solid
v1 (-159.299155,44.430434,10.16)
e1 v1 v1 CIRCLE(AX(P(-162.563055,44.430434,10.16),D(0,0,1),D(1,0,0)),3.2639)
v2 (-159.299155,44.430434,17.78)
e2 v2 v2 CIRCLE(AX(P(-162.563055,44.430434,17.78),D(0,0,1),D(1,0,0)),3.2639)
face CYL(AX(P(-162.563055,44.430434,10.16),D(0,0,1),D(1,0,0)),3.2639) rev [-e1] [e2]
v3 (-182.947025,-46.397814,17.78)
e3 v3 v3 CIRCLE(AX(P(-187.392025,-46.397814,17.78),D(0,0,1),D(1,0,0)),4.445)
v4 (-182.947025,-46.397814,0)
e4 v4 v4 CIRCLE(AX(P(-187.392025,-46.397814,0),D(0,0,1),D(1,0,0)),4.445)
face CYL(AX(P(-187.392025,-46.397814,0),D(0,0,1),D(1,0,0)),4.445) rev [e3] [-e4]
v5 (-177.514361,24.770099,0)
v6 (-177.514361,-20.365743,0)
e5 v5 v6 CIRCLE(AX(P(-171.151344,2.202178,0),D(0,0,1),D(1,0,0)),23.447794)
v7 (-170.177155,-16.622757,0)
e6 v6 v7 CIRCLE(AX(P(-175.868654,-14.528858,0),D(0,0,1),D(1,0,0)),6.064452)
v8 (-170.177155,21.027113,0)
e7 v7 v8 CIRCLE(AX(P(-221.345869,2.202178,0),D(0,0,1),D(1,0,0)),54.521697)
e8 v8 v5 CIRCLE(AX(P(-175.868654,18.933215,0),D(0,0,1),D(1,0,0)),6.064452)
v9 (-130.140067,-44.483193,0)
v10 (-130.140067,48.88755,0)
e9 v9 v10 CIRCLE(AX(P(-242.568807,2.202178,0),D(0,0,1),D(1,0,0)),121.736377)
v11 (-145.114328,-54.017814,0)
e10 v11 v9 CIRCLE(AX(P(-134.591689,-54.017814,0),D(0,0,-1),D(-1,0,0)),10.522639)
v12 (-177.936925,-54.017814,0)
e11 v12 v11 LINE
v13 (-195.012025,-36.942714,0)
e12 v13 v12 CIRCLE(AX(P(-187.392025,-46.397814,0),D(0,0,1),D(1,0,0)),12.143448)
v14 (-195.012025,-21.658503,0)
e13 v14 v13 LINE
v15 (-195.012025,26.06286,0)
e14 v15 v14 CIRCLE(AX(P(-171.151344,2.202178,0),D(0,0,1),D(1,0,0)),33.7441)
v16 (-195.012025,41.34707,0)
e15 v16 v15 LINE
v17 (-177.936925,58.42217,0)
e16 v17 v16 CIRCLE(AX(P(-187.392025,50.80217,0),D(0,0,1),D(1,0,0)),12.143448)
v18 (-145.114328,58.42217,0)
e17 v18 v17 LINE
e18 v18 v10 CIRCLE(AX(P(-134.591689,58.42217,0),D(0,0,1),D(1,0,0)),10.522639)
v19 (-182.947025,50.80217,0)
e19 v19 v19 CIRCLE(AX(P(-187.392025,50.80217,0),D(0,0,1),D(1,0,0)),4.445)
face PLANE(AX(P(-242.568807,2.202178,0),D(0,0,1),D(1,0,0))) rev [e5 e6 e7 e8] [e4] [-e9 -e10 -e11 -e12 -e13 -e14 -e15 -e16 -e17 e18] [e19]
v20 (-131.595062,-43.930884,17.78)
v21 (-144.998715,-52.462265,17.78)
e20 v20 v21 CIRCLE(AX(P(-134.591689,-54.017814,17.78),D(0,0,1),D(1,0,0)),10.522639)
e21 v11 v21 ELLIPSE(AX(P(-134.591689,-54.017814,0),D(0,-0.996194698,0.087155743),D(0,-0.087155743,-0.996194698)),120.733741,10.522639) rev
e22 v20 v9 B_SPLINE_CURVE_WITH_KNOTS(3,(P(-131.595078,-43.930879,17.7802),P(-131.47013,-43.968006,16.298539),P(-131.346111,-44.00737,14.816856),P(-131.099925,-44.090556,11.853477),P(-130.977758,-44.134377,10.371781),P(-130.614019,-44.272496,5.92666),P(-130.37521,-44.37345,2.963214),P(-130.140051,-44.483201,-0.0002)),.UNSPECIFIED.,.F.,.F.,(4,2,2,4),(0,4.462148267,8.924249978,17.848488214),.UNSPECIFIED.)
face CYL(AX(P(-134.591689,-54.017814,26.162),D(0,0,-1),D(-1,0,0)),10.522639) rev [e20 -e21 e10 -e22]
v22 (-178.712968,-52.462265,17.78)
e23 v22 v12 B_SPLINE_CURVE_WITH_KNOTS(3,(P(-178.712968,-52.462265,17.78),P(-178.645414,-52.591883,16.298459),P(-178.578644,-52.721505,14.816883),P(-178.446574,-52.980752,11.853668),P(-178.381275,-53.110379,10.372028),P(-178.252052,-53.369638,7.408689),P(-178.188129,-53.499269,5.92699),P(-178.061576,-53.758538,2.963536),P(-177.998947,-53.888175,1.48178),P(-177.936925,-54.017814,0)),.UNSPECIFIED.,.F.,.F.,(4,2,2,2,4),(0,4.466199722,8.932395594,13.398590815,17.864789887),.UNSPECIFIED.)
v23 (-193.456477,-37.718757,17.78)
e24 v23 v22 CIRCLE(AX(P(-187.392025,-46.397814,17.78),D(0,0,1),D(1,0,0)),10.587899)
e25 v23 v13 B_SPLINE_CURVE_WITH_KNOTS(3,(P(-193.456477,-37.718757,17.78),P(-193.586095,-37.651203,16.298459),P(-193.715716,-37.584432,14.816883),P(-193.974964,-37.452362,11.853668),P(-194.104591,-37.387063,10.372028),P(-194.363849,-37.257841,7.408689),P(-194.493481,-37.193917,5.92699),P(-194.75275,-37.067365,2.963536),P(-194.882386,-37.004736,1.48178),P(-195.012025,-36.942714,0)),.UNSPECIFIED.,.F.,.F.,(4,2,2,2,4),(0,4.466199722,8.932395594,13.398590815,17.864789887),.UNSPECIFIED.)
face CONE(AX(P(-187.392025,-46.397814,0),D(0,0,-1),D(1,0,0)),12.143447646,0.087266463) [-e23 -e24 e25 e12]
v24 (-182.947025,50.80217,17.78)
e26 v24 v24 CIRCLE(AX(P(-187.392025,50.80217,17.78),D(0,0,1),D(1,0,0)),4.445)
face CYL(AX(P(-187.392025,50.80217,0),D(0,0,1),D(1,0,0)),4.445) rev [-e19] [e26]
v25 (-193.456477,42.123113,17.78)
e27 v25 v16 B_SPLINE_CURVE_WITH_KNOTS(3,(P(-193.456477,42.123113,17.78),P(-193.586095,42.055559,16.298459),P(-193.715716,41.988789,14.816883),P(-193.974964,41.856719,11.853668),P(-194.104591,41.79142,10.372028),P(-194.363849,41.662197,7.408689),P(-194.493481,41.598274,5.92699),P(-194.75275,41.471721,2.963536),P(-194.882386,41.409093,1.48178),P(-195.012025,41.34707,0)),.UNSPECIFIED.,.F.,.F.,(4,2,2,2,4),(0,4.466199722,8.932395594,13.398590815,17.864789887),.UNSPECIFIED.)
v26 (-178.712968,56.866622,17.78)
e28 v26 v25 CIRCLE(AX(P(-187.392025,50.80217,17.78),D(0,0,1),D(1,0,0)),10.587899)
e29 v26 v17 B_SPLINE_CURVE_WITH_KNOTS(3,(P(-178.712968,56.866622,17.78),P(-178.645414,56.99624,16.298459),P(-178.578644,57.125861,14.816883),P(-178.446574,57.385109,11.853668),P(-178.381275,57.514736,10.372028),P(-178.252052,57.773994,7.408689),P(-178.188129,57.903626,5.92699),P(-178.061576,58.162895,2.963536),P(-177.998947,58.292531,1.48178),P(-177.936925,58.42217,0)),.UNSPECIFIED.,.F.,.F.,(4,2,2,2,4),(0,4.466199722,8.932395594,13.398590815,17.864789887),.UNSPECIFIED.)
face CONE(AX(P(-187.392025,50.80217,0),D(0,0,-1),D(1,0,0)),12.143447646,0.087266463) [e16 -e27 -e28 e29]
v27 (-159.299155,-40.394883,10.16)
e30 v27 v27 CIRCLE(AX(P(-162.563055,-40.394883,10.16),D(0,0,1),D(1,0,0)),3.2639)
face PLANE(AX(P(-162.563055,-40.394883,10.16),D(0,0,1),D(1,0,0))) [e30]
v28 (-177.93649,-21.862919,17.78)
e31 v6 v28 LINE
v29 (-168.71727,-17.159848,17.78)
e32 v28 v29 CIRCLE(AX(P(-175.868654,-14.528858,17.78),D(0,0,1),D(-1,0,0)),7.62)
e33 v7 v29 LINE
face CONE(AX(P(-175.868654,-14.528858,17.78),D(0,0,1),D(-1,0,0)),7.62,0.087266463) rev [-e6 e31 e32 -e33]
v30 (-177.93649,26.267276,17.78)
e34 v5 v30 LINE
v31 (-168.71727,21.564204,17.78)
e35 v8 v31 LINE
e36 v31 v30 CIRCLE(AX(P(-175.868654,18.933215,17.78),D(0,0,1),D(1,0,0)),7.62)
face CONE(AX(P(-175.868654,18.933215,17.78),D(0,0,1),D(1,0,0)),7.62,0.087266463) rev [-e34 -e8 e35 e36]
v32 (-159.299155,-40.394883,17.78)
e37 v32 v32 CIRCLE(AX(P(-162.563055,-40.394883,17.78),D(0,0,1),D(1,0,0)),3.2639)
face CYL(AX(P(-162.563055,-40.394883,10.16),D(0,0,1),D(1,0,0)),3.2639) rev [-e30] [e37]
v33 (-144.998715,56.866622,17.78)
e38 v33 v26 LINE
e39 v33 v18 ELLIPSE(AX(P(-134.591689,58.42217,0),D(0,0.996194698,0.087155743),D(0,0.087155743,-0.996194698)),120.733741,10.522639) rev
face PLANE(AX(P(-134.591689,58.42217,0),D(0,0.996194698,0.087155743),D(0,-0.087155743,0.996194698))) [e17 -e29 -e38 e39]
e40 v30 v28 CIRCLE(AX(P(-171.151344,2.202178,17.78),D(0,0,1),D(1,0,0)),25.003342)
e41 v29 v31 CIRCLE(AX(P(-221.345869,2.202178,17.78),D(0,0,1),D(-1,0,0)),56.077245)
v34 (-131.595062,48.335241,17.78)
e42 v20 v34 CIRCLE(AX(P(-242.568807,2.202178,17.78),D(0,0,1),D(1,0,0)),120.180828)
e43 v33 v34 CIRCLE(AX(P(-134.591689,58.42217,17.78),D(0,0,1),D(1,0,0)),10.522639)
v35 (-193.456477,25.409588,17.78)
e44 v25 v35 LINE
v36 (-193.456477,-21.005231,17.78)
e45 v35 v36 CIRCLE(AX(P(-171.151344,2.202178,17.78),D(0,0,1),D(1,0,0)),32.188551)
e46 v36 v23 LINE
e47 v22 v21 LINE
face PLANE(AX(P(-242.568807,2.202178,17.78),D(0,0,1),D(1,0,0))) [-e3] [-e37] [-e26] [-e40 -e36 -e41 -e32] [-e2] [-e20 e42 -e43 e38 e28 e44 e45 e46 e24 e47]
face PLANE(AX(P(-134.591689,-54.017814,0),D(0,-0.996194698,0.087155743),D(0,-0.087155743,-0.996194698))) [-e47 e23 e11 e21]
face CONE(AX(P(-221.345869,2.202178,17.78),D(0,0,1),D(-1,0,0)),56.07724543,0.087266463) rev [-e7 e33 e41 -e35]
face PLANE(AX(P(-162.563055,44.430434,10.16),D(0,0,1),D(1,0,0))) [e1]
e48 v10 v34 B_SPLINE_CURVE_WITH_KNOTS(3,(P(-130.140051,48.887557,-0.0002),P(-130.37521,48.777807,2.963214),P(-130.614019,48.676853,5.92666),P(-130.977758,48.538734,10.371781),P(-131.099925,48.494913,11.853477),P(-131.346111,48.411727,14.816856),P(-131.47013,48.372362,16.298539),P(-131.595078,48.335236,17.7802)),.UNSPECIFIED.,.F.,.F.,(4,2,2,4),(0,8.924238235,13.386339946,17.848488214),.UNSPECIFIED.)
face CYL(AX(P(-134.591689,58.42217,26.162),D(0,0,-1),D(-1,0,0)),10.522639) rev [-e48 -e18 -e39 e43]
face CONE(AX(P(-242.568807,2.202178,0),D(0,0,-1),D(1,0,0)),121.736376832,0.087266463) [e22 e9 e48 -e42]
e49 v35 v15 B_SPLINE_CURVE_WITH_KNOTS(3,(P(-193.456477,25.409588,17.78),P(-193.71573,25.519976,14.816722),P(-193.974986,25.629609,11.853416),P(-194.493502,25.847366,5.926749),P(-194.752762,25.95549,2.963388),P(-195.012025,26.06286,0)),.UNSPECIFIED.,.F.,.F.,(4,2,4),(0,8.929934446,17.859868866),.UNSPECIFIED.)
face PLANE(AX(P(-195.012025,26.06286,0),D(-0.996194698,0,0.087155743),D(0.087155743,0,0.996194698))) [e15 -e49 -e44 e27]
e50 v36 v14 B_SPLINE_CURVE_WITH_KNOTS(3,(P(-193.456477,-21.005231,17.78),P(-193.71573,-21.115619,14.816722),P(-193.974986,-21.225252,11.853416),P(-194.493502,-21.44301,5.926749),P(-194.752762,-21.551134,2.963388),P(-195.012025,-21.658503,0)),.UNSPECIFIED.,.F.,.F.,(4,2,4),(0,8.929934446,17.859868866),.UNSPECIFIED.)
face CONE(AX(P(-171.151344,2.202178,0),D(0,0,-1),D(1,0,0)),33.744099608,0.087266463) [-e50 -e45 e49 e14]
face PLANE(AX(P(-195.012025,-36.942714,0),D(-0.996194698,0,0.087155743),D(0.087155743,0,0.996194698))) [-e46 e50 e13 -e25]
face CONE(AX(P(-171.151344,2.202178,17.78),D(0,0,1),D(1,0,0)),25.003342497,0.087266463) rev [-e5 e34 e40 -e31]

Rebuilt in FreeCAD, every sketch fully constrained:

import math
import FreeCAD as App
import Part
import Sketcher
Q = App.Units.Quantity


def faces_at(feature, points):
    """Names of the faces that lie closest to the given points."""
    faces = feature.Shape.Faces
    near = lambda p: min(range(len(faces)), key=lambda i: faces[i].distToShape(Part.Vertex(*p))[0])
    return sorted({f"Face{near(p) + 1}" for p in points})

doc = App.newDocument("Part")
body = doc.addObject("PartDesign::Body", "Body")

# Sketch on XY plane
sketch1 = doc.addObject("Sketcher::SketchObject", "Sketch")
body.addObject(sketch1)
sketch1.AttachmentSupport = (doc.XY_Plane, [""])
sketch1.MapMode = "FlatFace"
sketch1.addGeometry(Part.ArcOfCircle(Part.Circle(App.Vector(-171.151344, 2.202178, 0), App.Vector(0, 0, 1), 33.7441), math.radians(135), math.radians(225)), False)
sketch1.addGeometry(Part.LineSegment(App.Vector(-195.012025, -21.658503, 0), App.Vector(-195.012025, -36.942714, 0)), False)
sketch1.addGeometry(Part.ArcOfCircle(Part.Circle(App.Vector(-187.392025, -46.397814, 0), App.Vector(0, 0, 1), 12.143448), math.radians(128.865836), math.radians(321.134164)), False)
sketch1.addGeometry(Part.LineSegment(App.Vector(-177.936925, -54.017814, 0), App.Vector(-134.591689, -54.017814, 0)), False)
sketch1.addGeometry(Part.ArcOfCircle(Part.Circle(App.Vector(-242.568807, 2.202178, 0), App.Vector(0, 0, 1), 121.736377), math.radians(-27.504451), math.radians(27.504451)), False)
sketch1.addGeometry(Part.LineSegment(App.Vector(-134.591689, 58.42217, 0), App.Vector(-177.936925, 58.42217, 0)), False)
sketch1.addGeometry(Part.ArcOfCircle(Part.Circle(App.Vector(-187.392025, 50.80217, 0), App.Vector(0, 0, 1), 12.143448), math.radians(38.865836), math.radians(231.134164)), False)
sketch1.addGeometry(Part.LineSegment(App.Vector(-195.012025, 41.34707, 0), App.Vector(-195.012025, 26.06286, 0)), False)
sketch1.addConstraint(Sketcher.Constraint("Coincident", 0, 2, 1, 1))
sketch1.addConstraint(Sketcher.Constraint("Coincident", 1, 2, 2, 1))
sketch1.addConstraint(Sketcher.Constraint("Coincident", 2, 2, 3, 1))
sketch1.addConstraint(Sketcher.Constraint("Coincident", 3, 2, 4, 1))
sketch1.addConstraint(Sketcher.Constraint("Coincident", 4, 2, 5, 1))
sketch1.addConstraint(Sketcher.Constraint("Coincident", 5, 2, 6, 1))
sketch1.addConstraint(Sketcher.Constraint("Coincident", 6, 2, 7, 1))
sketch1.addConstraint(Sketcher.Constraint("Coincident", 7, 2, 0, 1))
sketch1.addConstraint(Sketcher.Constraint("Vertical", 1))
sketch1.addConstraint(Sketcher.Constraint("Horizontal", 3))
sketch1.addConstraint(Sketcher.Constraint("Horizontal", 5))
sketch1.addConstraint(Sketcher.Constraint("Vertical", 7))
sketch1.addConstraint(Sketcher.Constraint("Equal", 2, 6))
sketch1.addConstraint(Sketcher.Constraint("Horizontal", 0, 3, 4, 3))
sketch1.addConstraint(Sketcher.Constraint("Vertical", 2, 3, 6, 3))
sketch1.addConstraint(Sketcher.Constraint("Vertical", 3, 2, 4, 2))
sketch1.addConstraint(Sketcher.Constraint("Vertical", 2, 2, 5, 2))
sketch1.addConstraint(Sketcher.Constraint("Vertical", 1, 2, 6, 2))
sketch1.addConstraint(Sketcher.Constraint("DistanceX", 0, 2, 2, 3, Q("0.3 in")))
sketch1.addConstraint(Sketcher.Constraint("DistanceY", 2, 2, 2, 3, Q("0.3 in")))
sketch1.addConstraint(Sketcher.Constraint("Radius", 0, Q("33.7441 mm")))
sketch1.addConstraint(Sketcher.Constraint("DistanceY", -1, 1, 0, 3, Q("0.0866999 in")))
sketch1.addConstraint(Sketcher.Constraint("Radius", 2, Q("12.143448 mm")))
sketch1.addConstraint(Sketcher.Constraint("Radius", 4, Q("121.736377 mm")))
sketch1.addConstraint(Sketcher.Constraint("DistanceY", 1, 2, 1, 1, Q("15.28421 mm")))
sketch1.addConstraint(Sketcher.Constraint("DistanceX", 3, 1, 3, 2, Q("43.345236 mm")))
sketch1.addConstraint(Sketcher.Constraint("DistanceY", -1, 1, 6, 3, Q("50.80217 mm")))
sketch1.addConstraint(Sketcher.Constraint("DistanceX", 3, 2, -1, 1, Q("134.591689 mm")))
pad1 = doc.addObject("PartDesign::Pad", "Pad")
body.addObject(pad1)
pad1.Profile = sketch1
pad1.Length = Q("0.7 in")
doc.recompute()

draft = doc.addObject("PartDesign::Draft", "Draft")
body.addObject(draft)
draft.Base = (pad1, faces_at(pad1, [
    (-204.895, 2.202, 8.89),
    (-195.012, -29.301, 8.89),
    (-195.979, -54.985, 8.89),
    (-156.264, -54.018, 8.89),
    (-120.832, 2.202, 8.89),
    (-156.264, 58.422, 8.89),
    (-195.979, 59.389, 8.89),
    (-195.012, 33.705, 8.89),
]))
draft.NeutralPlane = (doc.XY_Plane, [""])
draft.Angle = 5
draft.Reversed = False

# Sketch on XY plane
sketch2 = doc.addObject("Sketcher::SketchObject", "Sketch001")
body.addObject(sketch2)
sketch2.AttachmentSupport = (doc.XY_Plane, [""])
sketch2.MapMode = "FlatFace"
sketch2.AttachmentOffset = App.Placement(App.Vector(0, 0, 0.7 * 25.4), App.Rotation())
sketch2.addGeometry(Part.Circle(App.Vector(-187.392025, 50.80217, 0), App.Vector(0, 0, 1), 4.445), False)
sketch2.addGeometry(Part.Circle(App.Vector(-187.392025, -46.397814, 0), App.Vector(0, 0, 1), 4.445), False)
sketch2.addConstraint(Sketcher.Constraint("Equal", 0, 1))
sketch2.addConstraint(Sketcher.Constraint("Vertical", 0, 3, 1, 3))
sketch2.addConstraint(Sketcher.Constraint("Diameter", 0, Q("0.35 in")))
sketch2.addConstraint(Sketcher.Constraint("DistanceY", -1, 1, 0, 3, Q("50.80217 mm")))
sketch2.addConstraint(Sketcher.Constraint("DistanceX", 0, 3, -1, 1, Q("187.392025 mm")))
sketch2.addConstraint(Sketcher.Constraint("DistanceY", 1, 3, -1, 1, Q("46.397814 mm")))
pocket1 = doc.addObject("PartDesign::Pocket", "Pocket")
body.addObject(pocket1)
pocket1.Profile = sketch2
pocket1.Type = "ThroughAll"

# Sketch on XY plane
sketch3 = doc.addObject("Sketcher::SketchObject", "Sketch002")
body.addObject(sketch3)
sketch3.AttachmentSupport = (doc.XY_Plane, [""])
sketch3.MapMode = "FlatFace"
sketch3.AttachmentOffset = App.Placement(App.Vector(0, 0, 0.7 * 25.4), App.Rotation())
sketch3.addGeometry(Part.ArcOfCircle(Part.Circle(App.Vector(-171.151344, 2.202178, 0), App.Vector(0, 0, 1), 25.003342), math.radians(105.74578), math.radians(254.25422)), False)
sketch3.addGeometry(Part.ArcOfCircle(Part.Circle(App.Vector(-175.868654, -14.528858, 0), App.Vector(0, 0, 1), 7.62), math.radians(-105.74578), math.radians(-20.198535)), False)
sketch3.addGeometry(Part.ArcOfCircle(Part.Circle(App.Vector(-221.345869, 2.202178, 0), App.Vector(0, 0, 1), 56.077245), math.radians(-20.198535), math.radians(20.198535)), False)
sketch3.addGeometry(Part.ArcOfCircle(Part.Circle(App.Vector(-175.868654, 18.933215, 0), App.Vector(0, 0, 1), 7.62), math.radians(20.198535), math.radians(105.74578)), False)
sketch3.addConstraint(Sketcher.Constraint("Tangent", 0, 2, 1, 1))
sketch3.addConstraint(Sketcher.Constraint("Tangent", 1, 2, 2, 1))
sketch3.addConstraint(Sketcher.Constraint("Tangent", 2, 2, 3, 1))
sketch3.addConstraint(Sketcher.Constraint("Tangent", 3, 2, 0, 1))
sketch3.addConstraint(Sketcher.Constraint("Equal", 1, 3))
sketch3.addConstraint(Sketcher.Constraint("Horizontal", 0, 3, 2, 3))
sketch3.addConstraint(Sketcher.Constraint("Radius", 1, Q("0.3 in")))
sketch3.addConstraint(Sketcher.Constraint("DistanceY", -1, 1, 0, 3, Q("0.0866999 in")))
sketch3.addConstraint(Sketcher.Constraint("Radius", 0, Q("25.003342 mm")))
sketch3.addConstraint(Sketcher.Constraint("Radius", 2, Q("56.077245 mm")))
sketch3.addConstraint(Sketcher.Constraint("DistanceX", 2, 3, 1, 2, Q("52.628599 mm")))
sketch3.addConstraint(Sketcher.Constraint("DistanceX", 2, 3, -1, 1, Q("221.345869 mm")))
pocket2 = doc.addObject("PartDesign::Pocket", "Pocket001")
body.addObject(pocket2)
pocket2.Profile = sketch3
pocket2.Length = 18.78
pocket2.TaperAngle = -5

# Sketch on XY plane
sketch4 = doc.addObject("Sketcher::SketchObject", "Sketch003")
body.addObject(sketch4)
sketch4.AttachmentSupport = (doc.XY_Plane, [""])
sketch4.MapMode = "FlatFace"
sketch4.addGeometry(Part.Circle(App.Vector(-134.591689, 58.42217, 0), App.Vector(0, 0, 1), 10.522639), False)
sketch4.addGeometry(Part.Circle(App.Vector(-134.591689, -54.017814, 0), App.Vector(0, 0, 1), 10.522639), False)
sketch4.addConstraint(Sketcher.Constraint("Equal", 0, 1))
sketch4.addConstraint(Sketcher.Constraint("Vertical", 0, 3, 1, 3))
sketch4.addConstraint(Sketcher.Constraint("Diameter", 0, Q("21.045278 mm")))
sketch4.addConstraint(Sketcher.Constraint("DistanceX", 0, 3, -1, 1, Q("134.591689 mm")))
sketch4.addConstraint(Sketcher.Constraint("DistanceY", -1, 1, 0, 3, Q("58.42217 mm")))
sketch4.addConstraint(Sketcher.Constraint("DistanceY", 1, 3, -1, 1, Q("54.017814 mm")))
pocket3 = doc.addObject("PartDesign::Pocket", "Pocket002")
body.addObject(pocket3)
pocket3.Profile = sketch4
pocket3.Length = Q("1.03 in")
pocket3.Reversed = True

# Sketch on XY plane
sketch5 = doc.addObject("Sketcher::SketchObject", "Sketch004")
body.addObject(sketch5)
sketch5.AttachmentSupport = (doc.XY_Plane, [""])
sketch5.MapMode = "FlatFace"
sketch5.AttachmentOffset = App.Placement(App.Vector(0, 0, 0.7 * 25.4), App.Rotation())
sketch5.addGeometry(Part.Circle(App.Vector(-162.563055, 44.430434, 0), App.Vector(0, 0, 1), 3.2639), False)
sketch5.addGeometry(Part.Circle(App.Vector(-162.563055, -40.394883, 0), App.Vector(0, 0, 1), 3.2639), False)
sketch5.addConstraint(Sketcher.Constraint("Equal", 0, 1))
sketch5.addConstraint(Sketcher.Constraint("Vertical", 0, 3, 1, 3))
sketch5.addConstraint(Sketcher.Constraint("Diameter", 0, Q("0.257 in")))
sketch5.addConstraint(Sketcher.Constraint("DistanceX", 0, 3, -1, 1, Q("162.563055 mm")))
sketch5.addConstraint(Sketcher.Constraint("DistanceY", -1, 1, 0, 3, Q("44.430434 mm")))
sketch5.addConstraint(Sketcher.Constraint("DistanceY", 1, 3, -1, 1, Q("40.394883 mm")))
pocket4 = doc.addObject("PartDesign::Pocket", "Pocket003")
body.addObject(pocket4)
pocket4.Profile = sketch5
pocket4.Length = Q("0.3 in")

doc.recompute()
